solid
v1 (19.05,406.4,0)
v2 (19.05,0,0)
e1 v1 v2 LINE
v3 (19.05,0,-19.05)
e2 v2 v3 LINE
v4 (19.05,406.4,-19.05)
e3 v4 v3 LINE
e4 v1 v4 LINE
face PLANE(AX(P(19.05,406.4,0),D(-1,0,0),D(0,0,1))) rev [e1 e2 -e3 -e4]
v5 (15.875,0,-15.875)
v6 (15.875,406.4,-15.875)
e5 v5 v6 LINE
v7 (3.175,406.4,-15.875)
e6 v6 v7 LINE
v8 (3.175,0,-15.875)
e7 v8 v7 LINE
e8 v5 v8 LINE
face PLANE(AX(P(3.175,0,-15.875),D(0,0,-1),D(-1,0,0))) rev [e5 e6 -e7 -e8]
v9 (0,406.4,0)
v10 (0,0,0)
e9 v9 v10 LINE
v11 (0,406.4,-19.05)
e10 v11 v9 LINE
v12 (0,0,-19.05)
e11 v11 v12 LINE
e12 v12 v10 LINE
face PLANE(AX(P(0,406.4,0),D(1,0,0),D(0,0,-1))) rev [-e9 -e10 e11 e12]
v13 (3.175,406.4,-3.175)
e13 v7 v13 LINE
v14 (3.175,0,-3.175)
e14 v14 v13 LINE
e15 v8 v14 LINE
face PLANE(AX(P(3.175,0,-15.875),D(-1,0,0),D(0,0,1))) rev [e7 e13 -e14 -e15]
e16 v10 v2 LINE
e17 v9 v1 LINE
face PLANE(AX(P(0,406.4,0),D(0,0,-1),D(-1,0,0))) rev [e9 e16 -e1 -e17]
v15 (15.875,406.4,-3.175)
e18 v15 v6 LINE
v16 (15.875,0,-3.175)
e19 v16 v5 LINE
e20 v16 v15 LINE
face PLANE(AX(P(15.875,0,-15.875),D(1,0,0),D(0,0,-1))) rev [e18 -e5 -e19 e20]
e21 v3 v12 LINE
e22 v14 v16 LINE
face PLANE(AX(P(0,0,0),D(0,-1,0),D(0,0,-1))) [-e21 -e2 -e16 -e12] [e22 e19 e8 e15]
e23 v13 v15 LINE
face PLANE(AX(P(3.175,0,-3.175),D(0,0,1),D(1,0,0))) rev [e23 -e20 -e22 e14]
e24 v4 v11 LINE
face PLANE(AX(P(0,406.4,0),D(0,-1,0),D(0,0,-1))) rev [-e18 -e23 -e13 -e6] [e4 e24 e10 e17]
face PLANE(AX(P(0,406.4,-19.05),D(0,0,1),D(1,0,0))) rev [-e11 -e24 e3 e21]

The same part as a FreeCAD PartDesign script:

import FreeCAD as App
import Part
import Sketcher

V = App.Vector
Q = App.Units.Quantity


def add_polygon(sketch, points):
    """Adds a closed chain of lines whose ends are joined by coincident constraints."""
    first, n = sketch.GeometryCount, len(points)
    for a, b in zip(points, points[1:] + points[:1]):
        sketch.addGeometry(Part.LineSegment(App.Vector(*a, 0), App.Vector(*b, 0)), False)
    for i in range(n):
        sketch.addConstraint(Sketcher.Constraint("Coincident", first + i, 2, first + (i + 1) % n, 1))

doc = App.newDocument("Part")
body = doc.addObject("PartDesign::Body", "Body")

# Sketch on XZ plane
sketch1 = body.newObject("Sketcher::SketchObject", "Sketch")
sketch1.AttachmentSupport = (doc.getObject("XZ_Plane"), [""])
sketch1.MapMode = "FlatFace"
add_polygon(sketch1, [(0, -19), (0, 0), (19, 0), (19, -19)])  # lines 0-3
sketch1.addConstraint([
    Sketcher.Constraint("Vertical", 0),
    Sketcher.Constraint("Horizontal", 1),
    Sketcher.Constraint("Vertical", 2),
    Sketcher.Constraint("Horizontal", 3),
    Sketcher.Constraint("Coincident", 0, 2, -1, 1),
    Sketcher.Constraint("Equal", 3, 0),
    Sketcher.Constraint("DistanceX", 1, 1, 1, 2, Q("0.75 in")),
])
pad1 = body.newObject("PartDesign::Pad", "Pad")
pad1.Profile = sketch1
pad1.Length = Q("16 in")
pad1.Reversed = True

# Sketch on XZ plane
sketch2 = body.newObject("Sketcher::SketchObject", "Sketch001")
sketch2.AttachmentSupport = (doc.getObject("XZ_Plane"), [""])
sketch2.MapMode = "FlatFace"
sketch2.AttachmentOffset = App.Placement(V(0, 0, -16 * 25.4), App.Rotation())
add_polygon(sketch2, [(3, -16), (3, -3), (16, -3), (16, -16)])  # lines 0-3
sketch2.addConstraint([
    Sketcher.Constraint("Vertical", 0),
    Sketcher.Constraint("Horizontal", 1),
    Sketcher.Constraint("Vertical", 2),
    Sketcher.Constraint("Horizontal", 3),
    Sketcher.Constraint("Equal", 3, 0),
    Sketcher.Constraint("DistanceX", 1, 1, 1, 2, Q("0.5 in")),
    Sketcher.Constraint("DistanceX", -1, 1, 0, 2, Q("0.125 in")),
    Sketcher.Constraint("DistanceY", 0, 2, -1, 1, Q("0.125 in")),
])
pocket1 = body.newObject("PartDesign::Pocket", "Pocket")
pocket1.Profile = sketch2
pocket1.Length = Q("16 in")
pocket1.Reversed = True

doc.recompute()
